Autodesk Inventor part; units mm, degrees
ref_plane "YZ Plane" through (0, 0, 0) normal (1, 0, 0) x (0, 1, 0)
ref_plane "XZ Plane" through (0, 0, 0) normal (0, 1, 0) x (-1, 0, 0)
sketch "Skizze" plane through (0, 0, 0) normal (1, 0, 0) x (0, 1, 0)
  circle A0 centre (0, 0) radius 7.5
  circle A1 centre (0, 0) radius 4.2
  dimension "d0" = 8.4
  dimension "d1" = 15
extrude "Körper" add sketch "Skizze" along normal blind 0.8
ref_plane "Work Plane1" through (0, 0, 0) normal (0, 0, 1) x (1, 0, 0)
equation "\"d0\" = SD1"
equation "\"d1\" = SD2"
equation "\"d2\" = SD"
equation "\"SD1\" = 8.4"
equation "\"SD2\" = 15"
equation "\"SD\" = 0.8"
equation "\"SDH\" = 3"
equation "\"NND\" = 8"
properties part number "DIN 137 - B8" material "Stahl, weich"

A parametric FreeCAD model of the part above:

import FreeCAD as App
import Part
import Sketcher
Q = App.Units.Quantity

doc = App.newDocument("Part")
body = doc.addObject("PartDesign::Body", "Body")

# Sketch on YZ plane
sketch1 = body.newObject("Sketcher::SketchObject", "Sketch")
sketch1.AttachmentSupport = (doc.getObject("YZ_Plane"), [""])
sketch1.MapMode = "FlatFace"
sketch1.addGeometry(Part.Circle(App.Vector(0, 0, 0), App.Vector(0, 0, 1), 7.5), False)
sketch1.addGeometry(Part.Circle(App.Vector(0, 0, 0), App.Vector(0, 0, 1), 4.2), False)
sketch1.addConstraint(Sketcher.Constraint("Coincident", 0, 3, -1, 1))
sketch1.addConstraint(Sketcher.Constraint("Coincident", 1, 3, -1, 1))
sketch1.addConstraint(Sketcher.Constraint("Diameter", 0, Q("15 mm")))
sketch1.addConstraint(Sketcher.Constraint("Diameter", 1, Q("8.4 mm")))
pad1 = body.newObject("PartDesign::Pad", "Pad")
pad1.Profile = sketch1
pad1.Length = 0.8

doc.recompute()
